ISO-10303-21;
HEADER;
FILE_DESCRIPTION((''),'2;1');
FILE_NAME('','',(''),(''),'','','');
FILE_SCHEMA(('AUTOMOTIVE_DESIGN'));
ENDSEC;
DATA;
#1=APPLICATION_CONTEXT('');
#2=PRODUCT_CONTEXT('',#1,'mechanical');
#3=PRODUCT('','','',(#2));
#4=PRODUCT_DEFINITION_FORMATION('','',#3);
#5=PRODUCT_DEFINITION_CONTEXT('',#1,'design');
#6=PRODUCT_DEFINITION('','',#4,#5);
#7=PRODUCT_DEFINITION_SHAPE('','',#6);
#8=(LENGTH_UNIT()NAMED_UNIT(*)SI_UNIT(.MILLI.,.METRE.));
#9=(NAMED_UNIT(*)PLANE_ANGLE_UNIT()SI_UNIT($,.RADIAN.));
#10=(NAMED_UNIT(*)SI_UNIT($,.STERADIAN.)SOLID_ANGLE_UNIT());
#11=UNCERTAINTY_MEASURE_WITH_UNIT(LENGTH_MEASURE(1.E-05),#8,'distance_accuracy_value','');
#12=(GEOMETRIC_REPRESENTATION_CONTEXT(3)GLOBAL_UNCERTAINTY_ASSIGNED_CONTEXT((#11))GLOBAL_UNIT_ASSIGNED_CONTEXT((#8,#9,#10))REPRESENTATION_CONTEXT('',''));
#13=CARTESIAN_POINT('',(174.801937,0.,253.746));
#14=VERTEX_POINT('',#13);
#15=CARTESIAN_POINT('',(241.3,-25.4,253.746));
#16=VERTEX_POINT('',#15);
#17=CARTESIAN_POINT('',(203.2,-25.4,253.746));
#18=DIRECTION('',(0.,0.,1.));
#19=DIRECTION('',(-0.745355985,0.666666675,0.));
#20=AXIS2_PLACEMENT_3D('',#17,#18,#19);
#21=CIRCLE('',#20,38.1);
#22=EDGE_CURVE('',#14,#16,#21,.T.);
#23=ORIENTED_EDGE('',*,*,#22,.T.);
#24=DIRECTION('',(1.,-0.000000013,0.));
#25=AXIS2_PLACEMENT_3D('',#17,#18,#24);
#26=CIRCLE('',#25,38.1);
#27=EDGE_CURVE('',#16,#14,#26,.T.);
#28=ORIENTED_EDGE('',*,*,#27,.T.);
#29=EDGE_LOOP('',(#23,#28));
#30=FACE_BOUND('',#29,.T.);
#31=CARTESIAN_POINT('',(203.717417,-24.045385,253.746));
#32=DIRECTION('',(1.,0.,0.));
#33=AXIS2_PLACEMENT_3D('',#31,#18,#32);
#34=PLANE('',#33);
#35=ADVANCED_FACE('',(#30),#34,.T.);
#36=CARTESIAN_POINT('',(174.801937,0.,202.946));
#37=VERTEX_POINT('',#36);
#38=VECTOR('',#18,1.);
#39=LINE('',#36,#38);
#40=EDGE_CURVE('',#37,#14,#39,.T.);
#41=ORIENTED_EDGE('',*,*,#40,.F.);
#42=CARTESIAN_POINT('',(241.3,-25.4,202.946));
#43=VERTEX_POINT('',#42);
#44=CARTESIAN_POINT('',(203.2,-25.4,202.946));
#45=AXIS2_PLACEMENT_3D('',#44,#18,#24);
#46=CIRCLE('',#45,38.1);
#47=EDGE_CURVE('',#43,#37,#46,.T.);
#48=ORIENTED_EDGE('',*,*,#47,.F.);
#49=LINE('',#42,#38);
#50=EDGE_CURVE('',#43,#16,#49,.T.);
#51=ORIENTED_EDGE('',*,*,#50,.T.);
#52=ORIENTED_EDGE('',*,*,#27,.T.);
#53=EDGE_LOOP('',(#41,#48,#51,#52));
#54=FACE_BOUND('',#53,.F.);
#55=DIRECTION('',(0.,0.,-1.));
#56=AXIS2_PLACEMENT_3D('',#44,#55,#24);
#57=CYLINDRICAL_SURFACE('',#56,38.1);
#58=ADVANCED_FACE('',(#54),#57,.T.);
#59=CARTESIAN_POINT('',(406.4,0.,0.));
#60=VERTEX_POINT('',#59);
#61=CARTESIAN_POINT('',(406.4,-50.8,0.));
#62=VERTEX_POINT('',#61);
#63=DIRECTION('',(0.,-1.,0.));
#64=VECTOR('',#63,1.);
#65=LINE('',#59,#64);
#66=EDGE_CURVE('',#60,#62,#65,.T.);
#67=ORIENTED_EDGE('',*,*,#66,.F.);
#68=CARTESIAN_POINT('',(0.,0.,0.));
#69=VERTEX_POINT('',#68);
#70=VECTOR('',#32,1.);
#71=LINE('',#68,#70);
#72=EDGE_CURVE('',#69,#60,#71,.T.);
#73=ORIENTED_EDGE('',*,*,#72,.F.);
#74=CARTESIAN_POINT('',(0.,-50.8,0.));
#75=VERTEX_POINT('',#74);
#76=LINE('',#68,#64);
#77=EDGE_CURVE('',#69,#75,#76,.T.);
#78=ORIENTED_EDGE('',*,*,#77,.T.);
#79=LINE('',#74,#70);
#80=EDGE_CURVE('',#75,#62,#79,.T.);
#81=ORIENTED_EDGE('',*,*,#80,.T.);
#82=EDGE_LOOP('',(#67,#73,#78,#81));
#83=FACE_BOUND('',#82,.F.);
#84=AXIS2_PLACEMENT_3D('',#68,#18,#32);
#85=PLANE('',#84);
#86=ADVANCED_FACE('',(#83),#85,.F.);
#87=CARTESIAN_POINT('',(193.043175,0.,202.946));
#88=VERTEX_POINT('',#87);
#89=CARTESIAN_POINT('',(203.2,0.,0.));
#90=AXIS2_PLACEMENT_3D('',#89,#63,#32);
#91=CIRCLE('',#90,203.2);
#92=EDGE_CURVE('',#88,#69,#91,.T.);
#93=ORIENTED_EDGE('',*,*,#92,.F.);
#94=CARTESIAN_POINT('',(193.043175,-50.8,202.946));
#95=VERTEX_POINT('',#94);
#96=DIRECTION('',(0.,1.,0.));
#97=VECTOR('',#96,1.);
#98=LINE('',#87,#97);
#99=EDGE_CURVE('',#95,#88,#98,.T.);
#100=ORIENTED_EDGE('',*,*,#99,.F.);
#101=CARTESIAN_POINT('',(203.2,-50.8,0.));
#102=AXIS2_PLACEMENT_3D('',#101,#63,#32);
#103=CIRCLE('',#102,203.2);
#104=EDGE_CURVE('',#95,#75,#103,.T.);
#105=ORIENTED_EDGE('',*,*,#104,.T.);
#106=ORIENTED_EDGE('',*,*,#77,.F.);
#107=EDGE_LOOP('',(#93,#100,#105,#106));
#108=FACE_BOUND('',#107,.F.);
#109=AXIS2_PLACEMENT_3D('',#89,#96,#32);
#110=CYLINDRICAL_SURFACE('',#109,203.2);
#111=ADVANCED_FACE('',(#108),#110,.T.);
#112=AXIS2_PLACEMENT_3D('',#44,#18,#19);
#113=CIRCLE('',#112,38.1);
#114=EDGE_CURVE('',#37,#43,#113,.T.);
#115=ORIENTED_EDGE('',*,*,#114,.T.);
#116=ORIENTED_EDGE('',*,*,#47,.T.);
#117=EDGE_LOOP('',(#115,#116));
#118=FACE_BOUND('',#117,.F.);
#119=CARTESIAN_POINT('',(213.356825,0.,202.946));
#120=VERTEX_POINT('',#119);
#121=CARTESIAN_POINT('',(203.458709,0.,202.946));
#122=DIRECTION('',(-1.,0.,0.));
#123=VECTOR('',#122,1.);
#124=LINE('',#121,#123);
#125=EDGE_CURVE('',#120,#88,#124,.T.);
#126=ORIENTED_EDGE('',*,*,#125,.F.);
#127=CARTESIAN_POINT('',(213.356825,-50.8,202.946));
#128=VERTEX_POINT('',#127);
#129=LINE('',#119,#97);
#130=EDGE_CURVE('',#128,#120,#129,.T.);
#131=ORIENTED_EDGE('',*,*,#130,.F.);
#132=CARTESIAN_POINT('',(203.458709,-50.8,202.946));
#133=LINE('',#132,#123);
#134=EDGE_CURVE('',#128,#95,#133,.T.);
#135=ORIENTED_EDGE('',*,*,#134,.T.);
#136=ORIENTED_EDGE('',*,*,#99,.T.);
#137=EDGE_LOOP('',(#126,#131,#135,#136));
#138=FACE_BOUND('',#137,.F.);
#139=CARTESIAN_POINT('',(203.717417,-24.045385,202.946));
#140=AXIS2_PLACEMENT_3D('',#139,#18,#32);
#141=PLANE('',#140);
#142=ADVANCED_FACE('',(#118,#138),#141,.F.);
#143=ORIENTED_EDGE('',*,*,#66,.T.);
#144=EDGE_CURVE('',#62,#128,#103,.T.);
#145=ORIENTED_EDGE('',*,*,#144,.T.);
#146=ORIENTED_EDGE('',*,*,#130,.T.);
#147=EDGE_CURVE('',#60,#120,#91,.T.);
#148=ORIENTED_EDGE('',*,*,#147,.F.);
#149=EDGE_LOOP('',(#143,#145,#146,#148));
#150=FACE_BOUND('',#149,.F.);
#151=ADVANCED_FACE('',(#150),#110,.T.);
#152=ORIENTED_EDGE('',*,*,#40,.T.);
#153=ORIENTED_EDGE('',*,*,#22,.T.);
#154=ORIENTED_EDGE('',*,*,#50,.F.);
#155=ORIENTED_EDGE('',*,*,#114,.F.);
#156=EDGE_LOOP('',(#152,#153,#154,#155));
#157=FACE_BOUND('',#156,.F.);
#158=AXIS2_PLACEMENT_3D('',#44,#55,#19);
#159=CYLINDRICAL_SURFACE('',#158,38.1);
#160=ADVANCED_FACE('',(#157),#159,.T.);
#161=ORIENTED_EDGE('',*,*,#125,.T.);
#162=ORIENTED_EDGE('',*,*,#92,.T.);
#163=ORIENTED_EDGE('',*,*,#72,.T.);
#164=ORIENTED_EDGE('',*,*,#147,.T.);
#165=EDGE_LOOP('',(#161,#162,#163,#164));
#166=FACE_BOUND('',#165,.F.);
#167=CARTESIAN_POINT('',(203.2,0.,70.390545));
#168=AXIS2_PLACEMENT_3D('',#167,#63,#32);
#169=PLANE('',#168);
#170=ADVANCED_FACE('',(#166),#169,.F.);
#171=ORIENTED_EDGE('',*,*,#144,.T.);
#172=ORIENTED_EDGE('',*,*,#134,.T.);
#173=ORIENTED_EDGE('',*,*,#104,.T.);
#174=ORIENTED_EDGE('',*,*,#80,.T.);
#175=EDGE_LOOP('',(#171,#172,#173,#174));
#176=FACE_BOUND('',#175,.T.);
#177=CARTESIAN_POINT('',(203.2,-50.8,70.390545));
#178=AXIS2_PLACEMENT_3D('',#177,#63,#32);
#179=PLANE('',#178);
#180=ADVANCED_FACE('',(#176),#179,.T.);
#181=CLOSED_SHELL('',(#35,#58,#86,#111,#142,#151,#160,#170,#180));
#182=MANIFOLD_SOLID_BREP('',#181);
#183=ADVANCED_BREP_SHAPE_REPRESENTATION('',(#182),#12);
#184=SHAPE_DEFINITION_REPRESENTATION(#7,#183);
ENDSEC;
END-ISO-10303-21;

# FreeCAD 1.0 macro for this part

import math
import FreeCAD as App
import Part
import Sketcher

V = App.Vector
Q = App.Units.Quantity

doc = App.newDocument("Part")
params = doc.addObject("Spreadsheet::Sheet", "Params")
for row, (alias, value) in enumerate([
    ("sketch1_radius", "8 in"),
    ("pad1_length", "2 in"),
    ("sketch2_radius", "1.5 in"),
    ("pad2_length", "2 in"),
], start=1):
    params.set(f"A{row}", alias)
    params.set(f"B{row}", "=" + value)
    params.setAlias(f"B{row}", alias)

body = doc.addObject("PartDesign::Body", "Body")

# Sketch on XZ plane
sketch1 = body.newObject("Sketcher::SketchObject", "Sketch")
sketch1.AttachmentSupport = (doc.getObject("XZ_Plane"), [""])
sketch1.MapMode = "FlatFace"
sketch1.addGeometry(Part.ArcOfCircle(Part.Circle(V(203, 0, 0), V(0, 0, 1), 203), math.radians(0), math.radians(180)), False)
sketch1.addGeometry(Part.LineSegment(V(0, 0, 0), V(406, 0, 0)), False)
sketch1.addConstraint(Sketcher.Constraint("Coincident", 0, 1, 1, 2))
sketch1.addConstraint(Sketcher.Constraint("Coincident", 1, 1, 0, 2))
sketch1.addConstraint(Sketcher.Constraint("Horizontal", 1))
sketch1.addConstraint(Sketcher.Constraint("Coincident", 1, 1, -1, 1))
sketch1.addConstraint(Sketcher.Constraint("PointOnObject", 0, 3, -1))
sketch1.addConstraint(Sketcher.Constraint("Radius", 0, Q("8 in")))
sketch1.setExpression("Constraints[5]", "Params.sketch1_radius")
pad1 = body.newObject("PartDesign::Pad", "Pad")
pad1.Profile = sketch1
pad1.setExpression("Length", "Params.pad1_length")

# Sketch on XY plane
sketch2 = body.newObject("Sketcher::SketchObject", "Sketch001")
sketch2.AttachmentSupport = (doc.getObject("XY_Plane"), [""])
sketch2.MapMode = "FlatFace"
sketch2.AttachmentOffset = App.Placement(V(0, 0, 7.99 * 25.4), App.Rotation())
sketch2.addGeometry(Part.ArcOfCircle(Part.Circle(V(203, -25, 0), V(0, 0, 1), 38), math.radians(138), math.radians(360)), False)
sketch2.addGeometry(Part.ArcOfCircle(Part.Circle(V(203, -25, 0), V(0, 0, 1), 38), math.radians(0), math.radians(138)), False)
sketch2.addConstraint(Sketcher.Constraint("Tangent", 0, 1, 1, 2))
sketch2.addConstraint(Sketcher.Constraint("Coincident", 1, 1, 0, 2))
sketch2.addConstraint(Sketcher.Constraint("PointOnObject", 0, 1, -1))
sketch2.addConstraint(Sketcher.Constraint("Horizontal", 0, 3, 1, 1))
sketch2.addConstraint(Sketcher.Constraint("Radius", 0, Q("1.5 in")))
sketch2.addConstraint(Sketcher.Constraint("DistanceX", -1, 1, 0, 3, Q("8 in")))
sketch2.addConstraint(Sketcher.Constraint("DistanceY", 0, 3, -1, 1, Q("1 in")))
sketch2.setExpression("Constraints[4]", "Params.sketch2_radius")
pad2 = body.newObject("PartDesign::Pad", "Pad001")
pad2.Profile = sketch2
pad2.setExpression("Length", "Params.pad2_length")

doc.recompute()
